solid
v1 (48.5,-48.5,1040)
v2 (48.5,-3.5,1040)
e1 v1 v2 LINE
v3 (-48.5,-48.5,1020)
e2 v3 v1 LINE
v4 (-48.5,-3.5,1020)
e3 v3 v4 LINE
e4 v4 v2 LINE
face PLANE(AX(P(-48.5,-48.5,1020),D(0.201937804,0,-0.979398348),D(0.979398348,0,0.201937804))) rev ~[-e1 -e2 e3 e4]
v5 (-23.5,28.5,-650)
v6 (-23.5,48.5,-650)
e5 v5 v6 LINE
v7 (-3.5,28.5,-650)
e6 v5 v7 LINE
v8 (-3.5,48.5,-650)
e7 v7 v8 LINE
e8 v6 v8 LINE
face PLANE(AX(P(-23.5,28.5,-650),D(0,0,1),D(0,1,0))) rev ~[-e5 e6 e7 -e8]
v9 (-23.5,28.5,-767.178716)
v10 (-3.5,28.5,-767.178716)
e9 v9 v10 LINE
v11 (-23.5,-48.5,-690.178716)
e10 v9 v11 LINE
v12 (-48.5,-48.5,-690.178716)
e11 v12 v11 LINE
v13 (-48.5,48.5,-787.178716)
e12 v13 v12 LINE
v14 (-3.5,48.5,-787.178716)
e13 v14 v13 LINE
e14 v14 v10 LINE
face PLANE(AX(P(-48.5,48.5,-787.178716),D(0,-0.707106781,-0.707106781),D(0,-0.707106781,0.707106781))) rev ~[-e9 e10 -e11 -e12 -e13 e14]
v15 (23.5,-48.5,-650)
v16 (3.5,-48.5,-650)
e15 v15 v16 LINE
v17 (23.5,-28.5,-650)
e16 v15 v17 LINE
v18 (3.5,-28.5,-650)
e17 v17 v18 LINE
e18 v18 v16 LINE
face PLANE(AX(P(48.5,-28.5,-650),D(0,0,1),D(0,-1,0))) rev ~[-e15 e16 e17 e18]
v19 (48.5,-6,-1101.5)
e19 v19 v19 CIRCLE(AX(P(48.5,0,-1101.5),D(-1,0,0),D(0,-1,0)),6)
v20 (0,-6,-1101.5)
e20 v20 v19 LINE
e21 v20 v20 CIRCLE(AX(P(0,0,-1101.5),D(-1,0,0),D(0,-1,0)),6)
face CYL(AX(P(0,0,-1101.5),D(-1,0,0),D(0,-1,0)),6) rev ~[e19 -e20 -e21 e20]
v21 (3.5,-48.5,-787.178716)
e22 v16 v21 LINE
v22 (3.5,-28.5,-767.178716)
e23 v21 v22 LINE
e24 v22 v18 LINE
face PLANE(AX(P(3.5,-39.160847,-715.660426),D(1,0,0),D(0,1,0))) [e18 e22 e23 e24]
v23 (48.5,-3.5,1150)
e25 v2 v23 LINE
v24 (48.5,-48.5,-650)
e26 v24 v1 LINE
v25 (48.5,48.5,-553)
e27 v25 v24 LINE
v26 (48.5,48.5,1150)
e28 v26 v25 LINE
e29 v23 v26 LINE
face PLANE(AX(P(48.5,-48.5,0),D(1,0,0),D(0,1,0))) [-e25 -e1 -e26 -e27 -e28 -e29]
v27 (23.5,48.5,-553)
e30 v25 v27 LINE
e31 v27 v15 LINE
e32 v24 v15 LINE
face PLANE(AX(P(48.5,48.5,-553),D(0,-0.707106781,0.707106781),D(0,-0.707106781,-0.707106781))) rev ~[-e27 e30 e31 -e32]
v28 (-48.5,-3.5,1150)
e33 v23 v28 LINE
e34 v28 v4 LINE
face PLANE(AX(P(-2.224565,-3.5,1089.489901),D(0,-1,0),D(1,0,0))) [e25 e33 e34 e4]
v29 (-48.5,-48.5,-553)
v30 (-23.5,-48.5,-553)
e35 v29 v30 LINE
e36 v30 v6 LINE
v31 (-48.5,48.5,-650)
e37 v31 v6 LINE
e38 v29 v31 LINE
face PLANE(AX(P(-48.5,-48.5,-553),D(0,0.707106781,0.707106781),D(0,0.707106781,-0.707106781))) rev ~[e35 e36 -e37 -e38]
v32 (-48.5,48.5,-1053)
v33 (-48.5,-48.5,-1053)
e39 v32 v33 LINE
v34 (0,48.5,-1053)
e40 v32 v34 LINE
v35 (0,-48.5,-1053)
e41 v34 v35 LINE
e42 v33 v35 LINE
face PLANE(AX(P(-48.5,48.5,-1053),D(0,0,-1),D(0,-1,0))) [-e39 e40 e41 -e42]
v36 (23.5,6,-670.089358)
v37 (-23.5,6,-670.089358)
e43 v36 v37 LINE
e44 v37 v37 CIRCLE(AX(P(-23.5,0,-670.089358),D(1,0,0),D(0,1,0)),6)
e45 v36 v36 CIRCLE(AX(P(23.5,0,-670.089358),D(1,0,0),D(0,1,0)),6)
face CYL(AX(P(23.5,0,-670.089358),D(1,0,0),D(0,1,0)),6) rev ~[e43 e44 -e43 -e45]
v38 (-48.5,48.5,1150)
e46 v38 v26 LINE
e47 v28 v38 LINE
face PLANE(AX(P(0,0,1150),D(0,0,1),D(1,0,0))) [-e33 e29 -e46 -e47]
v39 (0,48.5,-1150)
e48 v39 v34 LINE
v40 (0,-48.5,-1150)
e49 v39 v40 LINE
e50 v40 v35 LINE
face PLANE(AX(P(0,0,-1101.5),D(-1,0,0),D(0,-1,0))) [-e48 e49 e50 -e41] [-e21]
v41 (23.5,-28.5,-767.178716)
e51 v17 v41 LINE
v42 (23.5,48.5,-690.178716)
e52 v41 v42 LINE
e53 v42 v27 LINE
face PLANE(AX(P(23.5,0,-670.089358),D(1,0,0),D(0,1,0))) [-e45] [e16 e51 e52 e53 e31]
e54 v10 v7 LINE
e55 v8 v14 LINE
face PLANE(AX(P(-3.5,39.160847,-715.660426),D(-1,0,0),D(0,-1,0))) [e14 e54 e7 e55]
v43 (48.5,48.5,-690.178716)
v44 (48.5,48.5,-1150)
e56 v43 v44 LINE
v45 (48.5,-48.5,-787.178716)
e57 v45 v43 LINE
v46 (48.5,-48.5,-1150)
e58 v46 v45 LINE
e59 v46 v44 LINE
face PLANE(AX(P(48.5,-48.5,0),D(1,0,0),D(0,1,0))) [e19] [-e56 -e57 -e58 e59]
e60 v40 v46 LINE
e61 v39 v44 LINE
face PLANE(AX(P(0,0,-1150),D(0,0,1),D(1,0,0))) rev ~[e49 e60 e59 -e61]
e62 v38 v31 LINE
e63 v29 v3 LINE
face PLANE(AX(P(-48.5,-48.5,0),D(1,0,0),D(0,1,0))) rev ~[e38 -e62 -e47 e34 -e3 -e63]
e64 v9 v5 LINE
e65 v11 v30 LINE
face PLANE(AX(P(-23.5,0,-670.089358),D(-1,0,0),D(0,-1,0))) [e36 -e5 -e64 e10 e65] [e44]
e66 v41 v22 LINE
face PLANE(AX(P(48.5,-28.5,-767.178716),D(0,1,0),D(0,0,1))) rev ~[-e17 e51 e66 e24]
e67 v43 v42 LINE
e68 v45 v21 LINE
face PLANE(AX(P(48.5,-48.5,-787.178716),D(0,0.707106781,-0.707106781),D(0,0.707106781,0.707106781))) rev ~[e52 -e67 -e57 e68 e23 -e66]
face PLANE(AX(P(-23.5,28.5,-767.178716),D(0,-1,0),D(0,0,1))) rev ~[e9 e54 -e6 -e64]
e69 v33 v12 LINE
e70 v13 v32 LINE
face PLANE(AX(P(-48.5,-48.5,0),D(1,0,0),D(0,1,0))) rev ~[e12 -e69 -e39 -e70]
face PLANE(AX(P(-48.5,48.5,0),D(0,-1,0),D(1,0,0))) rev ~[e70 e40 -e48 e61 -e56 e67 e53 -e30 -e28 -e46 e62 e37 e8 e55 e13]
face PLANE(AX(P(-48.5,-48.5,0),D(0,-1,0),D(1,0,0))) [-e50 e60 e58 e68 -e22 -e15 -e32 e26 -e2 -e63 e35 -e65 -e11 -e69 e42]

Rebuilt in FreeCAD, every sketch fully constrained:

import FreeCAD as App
import Part
import Sketcher

V = App.Vector
Q = App.Units.Quantity

doc = App.newDocument("Part")
params = doc.addObject("Spreadsheet::Sheet", "Params")
for row, (alias, value) in enumerate([
    ("sketch1_width", "97 mm"),
    ("pad1_length", "2300 mm"),
    ("sketch2_width", "97 mm"),
    ("pocket1_length", "48.5 mm"),
    ("sketch3_width", "20 mm"),
    ("pocket2_length", "45 mm"),
    ("pocket3_length", "25 mm"),
    ("pocket4_length", "25 mm"),
    ("sketch6_width", "20 mm"),
    ("pocket5_length", "20 mm"),
    ("sketch7_diameter", "12 mm"),
    ("sketch8_diameter", "12 mm"),
    ("sketch9_width", "97 mm"),
    ("sketch9_height", "130 mm"),
    ("sketch9_height2", "110 mm"),
    ("pocket8_length", "45 mm"),
], start=1):
    params.set(f"A{row}", alias)
    params.set(f"B{row}", "=" + value)
    params.setAlias(f"B{row}", alias)

body = doc.addObject("PartDesign::Body", "Body")

sketch1 = doc.addObject("Sketcher::SketchObject", "Sketch")
body.addObject(sketch1)
sketch1.AttachmentSupport = (doc.XY_Plane, [""])
sketch1.MapMode = "FlatFace"
sketch1.addGeometry([
    Part.LineSegment(V(-48, 48, 0), V(-48, -48, 0)),
    Part.LineSegment(V(-48, -48, 0), V(48, -48, 0)),
    Part.LineSegment(V(48, -48, 0), V(48, 48, 0)),
    Part.LineSegment(V(48, 48, 0), V(-48, 48, 0)),
], False)
sketch1.addConstraint([
    Sketcher.Constraint("Coincident", 0, 2, 1, 1),
    Sketcher.Constraint("Coincident", 1, 2, 2, 1),
    Sketcher.Constraint("Coincident", 2, 2, 3, 1),
    Sketcher.Constraint("Coincident", 3, 2, 0, 1),
    Sketcher.Constraint("Vertical", 0),
    Sketcher.Constraint("Horizontal", 1),
    Sketcher.Constraint("Vertical", 2),
    Sketcher.Constraint("Horizontal", 3),
    Sketcher.Constraint("Symmetric", 0, 2, 2, 2, -1, 1),
    Sketcher.Constraint("Equal", 3, 0),
    Sketcher.Constraint("DistanceX", 1, 1, 1, 2, 97.0),
])
sketch1.setExpression("Constraints[10]", "Params.sketch1_width")
pad1 = doc.addObject("PartDesign::Pad", "Pad")
body.addObject(pad1)
pad1.Profile = sketch1
pad1.setExpression("Length", "Params.pad1_length")
pad1.Midplane = True

sketch2 = doc.addObject("Sketcher::SketchObject", "Sketch001")
body.addObject(sketch2)
sketch2.AttachmentSupport = (doc.YZ_Plane, [""])
sketch2.MapMode = "FlatFace"
sketch2.AttachmentOffset = App.Placement(V(0, 0, -48.5), App.Rotation())
sketch2.addGeometry([
    Part.LineSegment(V(48, -1053, 0), V(48, -1150, 0)),
    Part.LineSegment(V(48, -1150, 0), V(-48, -1150, 0)),
    Part.LineSegment(V(-48, -1150, 0), V(-48, -1053, 0)),
    Part.LineSegment(V(-48, -1053, 0), V(48, -1053, 0)),
], False)
sketch2.addConstraint([
    Sketcher.Constraint("Coincident", 0, 2, 1, 1),
    Sketcher.Constraint("Coincident", 1, 2, 2, 1),
    Sketcher.Constraint("Coincident", 2, 2, 3, 1),
    Sketcher.Constraint("Coincident", 3, 2, 0, 1),
    Sketcher.Constraint("Vertical", 0),
    Sketcher.Constraint("Horizontal", 1),
    Sketcher.Constraint("Vertical", 2),
    Sketcher.Constraint("Horizontal", 3),
    Sketcher.Constraint("Equal", 3, 0),
    Sketcher.Constraint("DistanceX", 1, 2, 1, 1, 97.0),
    Sketcher.Constraint("DistanceY", 0, 2, -1, 1, 1150.0),
    Sketcher.Constraint("DistanceX", -1, 1, 0, 2, 48.5),
])
sketch2.setExpression("Constraints[9]", "Params.sketch2_width")
pocket1 = doc.addObject("PartDesign::Pocket", "Pocket")
body.addObject(pocket1)
pocket1.Profile = sketch2
pocket1.setExpression("Length", "Params.pocket1_length")
pocket1.Reversed = True

sketch3 = doc.addObject("Sketcher::SketchObject", "Sketch002")
body.addObject(sketch3)
sketch3.AttachmentSupport = (doc.YZ_Plane, [""])
sketch3.MapMode = "FlatFace"
sketch3.AttachmentOffset = App.Placement(V(0, 0, 48.5), App.Rotation())
sketch3.addGeometry([
    Part.LineSegment(V(-28, -650, 0), V(-48, -650, 0)),
    Part.LineSegment(V(-48, -650, 0), V(-48, -787, 0)),
    Part.LineSegment(V(-48, -787, 0), V(-28, -767, 0)),
    Part.LineSegment(V(-28, -767, 0), V(-28, -650, 0)),
], False)
sketch3.addConstraint([
    Sketcher.Constraint("Coincident", 0, 2, 1, 1),
    Sketcher.Constraint("Coincident", 1, 2, 2, 1),
    Sketcher.Constraint("Coincident", 2, 2, 3, 1),
    Sketcher.Constraint("Coincident", 3, 2, 0, 1),
    Sketcher.Constraint("Horizontal", 0),
    Sketcher.Constraint("Vertical", 1),
    Sketcher.Constraint("Vertical", 3),
    Sketcher.Constraint("DistanceX", 0, 2, 0, 1, 20.0),
    Sketcher.Constraint("Angle", 2, Q("45 deg")),
    Sketcher.Constraint("DistanceY", 0, 2, -1, 1, 650.0),
    Sketcher.Constraint("DistanceX", 0, 2, -1, 1, 48.5),
    Sketcher.Constraint("DistanceY", 1, 2, 1, 1, 137.178716),
])
sketch3.setExpression("Constraints[7]", "Params.sketch3_width")
pocket2 = doc.addObject("PartDesign::Pocket", "Pocket001")
body.addObject(pocket2)
pocket2.Profile = sketch3
pocket2.setExpression("Length", "Params.pocket2_length")

sketch4 = doc.addObject("Sketcher::SketchObject", "Sketch003")
body.addObject(sketch4)
sketch4.AttachmentSupport = (doc.YZ_Plane, [""])
sketch4.MapMode = "FlatFace"
sketch4.AttachmentOffset = App.Placement(V(0, 0, -48.5), App.Rotation())
sketch4.addGeometry([
    Part.LineSegment(V(48, -650, 0), V(48, -787, 0)),
    Part.LineSegment(V(48, -787, 0), V(-48, -690, 0)),
    Part.LineSegment(V(-48, -690, 0), V(-48, -553, 0)),
    Part.LineSegment(V(-48, -553, 0), V(48, -650, 0)),
], False)
sketch4.addConstraint([
    Sketcher.Constraint("Coincident", 0, 2, 1, 1),
    Sketcher.Constraint("Coincident", 1, 2, 2, 1),
    Sketcher.Constraint("Coincident", 2, 2, 3, 1),
    Sketcher.Constraint("Coincident", 3, 2, 0, 1),
    Sketcher.Constraint("Vertical", 0),
    Sketcher.Constraint("Vertical", 2),
    Sketcher.Constraint("Parallel", 1, 3),
    Sketcher.Constraint("Angle", 1, Q("135 deg")),
    Sketcher.Constraint("DistanceY", 2, 2, -1, 1, 553.0),
    Sketcher.Constraint("DistanceY", 3, 2, -1, 1, 650.0),
    Sketcher.Constraint("DistanceX", -1, 1, 0, 2, 48.5),
    Sketcher.Constraint("DistanceY", 0, 2, 0, 1, 137.178716),
])
pocket3 = doc.addObject("PartDesign::Pocket", "Pocket002")
body.addObject(pocket3)
pocket3.Profile = sketch4
pocket3.setExpression("Length", "Params.pocket3_length")
pocket3.Reversed = True

sketch5 = doc.addObject("Sketcher::SketchObject", "Sketch004")
body.addObject(sketch5)
sketch5.AttachmentSupport = (doc.YZ_Plane, [""])
sketch5.MapMode = "FlatFace"
sketch5.AttachmentOffset = App.Placement(V(0, 0, 48.5), App.Rotation())
sketch5.addGeometry([
    Part.LineSegment(V(48, -690, 0), V(48, -553, 0)),
    Part.LineSegment(V(48, -553, 0), V(-48, -650, 0)),
    Part.LineSegment(V(-48, -650, 0), V(-48, -787, 0)),
    Part.LineSegment(V(-48, -787, 0), V(48, -690, 0)),
], False)
sketch5.addConstraint([
    Sketcher.Constraint("Coincident", 0, 2, 1, 1),
    Sketcher.Constraint("Coincident", 1, 2, 2, 1),
    Sketcher.Constraint("Coincident", 2, 2, 3, 1),
    Sketcher.Constraint("Coincident", 3, 2, 0, 1),
    Sketcher.Constraint("Vertical", 0),
    Sketcher.Constraint("Vertical", 2),
    Sketcher.Constraint("Parallel", 1, 3),
    Sketcher.Constraint("Angle", 1, Q("-135 deg")),
    Sketcher.Constraint("DistanceY", 0, 2, -1, 1, 553.0),
    Sketcher.Constraint("DistanceY", 1, 2, -1, 1, 650.0),
    Sketcher.Constraint("DistanceX", -1, 1, 0, 2, 48.5),
    Sketcher.Constraint("DistanceY", 0, 1, 0, 2, 137.178716),
])
pocket4 = doc.addObject("PartDesign::Pocket", "Pocket003")
body.addObject(pocket4)
pocket4.Profile = sketch5
pocket4.setExpression("Length", "Params.pocket4_length")

sketch6 = doc.addObject("Sketcher::SketchObject", "Sketch005")
body.addObject(sketch6)
sketch6.AttachmentSupport = (doc.YZ_Plane, [""])
sketch6.MapMode = "FlatFace"
sketch6.AttachmentOffset = App.Placement(V(0, 0, -23.5), App.Rotation())
sketch6.addGeometry([
    Part.LineSegment(V(48, -650, 0), V(48, -787, 0)),
    Part.LineSegment(V(48, -787, 0), V(28, -767, 0)),
    Part.LineSegment(V(28, -767, 0), V(28, -650, 0)),
    Part.LineSegment(V(28, -650, 0), V(48, -650, 0)),
], False)
sketch6.addConstraint([
    Sketcher.Constraint("Coincident", 0, 2, 1, 1),
    Sketcher.Constraint("Coincident", 1, 2, 2, 1),
    Sketcher.Constraint("Coincident", 2, 2, 3, 1),
    Sketcher.Constraint("Coincident", 3, 2, 0, 1),
    Sketcher.Constraint("Vertical", 0),
    Sketcher.Constraint("Vertical", 2),
    Sketcher.Constraint("Horizontal", 3),
    Sketcher.Constraint("DistanceX", 3, 1, 3, 2, 20.0),
    Sketcher.Constraint("Angle", 1, Q("135 deg")),
    Sketcher.Constraint("DistanceY", 2, 2, -1, 1, 650.0),
    Sketcher.Constraint("DistanceX", -1, 1, 0, 2, 48.5),
    Sketcher.Constraint("DistanceY", 0, 2, 0, 1, 137.178716),
])
sketch6.setExpression("Constraints[7]", "Params.sketch6_width")
pocket5 = doc.addObject("PartDesign::Pocket", "Pocket004")
body.addObject(pocket5)
pocket5.Profile = sketch6
pocket5.setExpression("Length", "Params.pocket5_length")
pocket5.Reversed = True

sketch7 = doc.addObject("Sketcher::SketchObject", "Sketch006")
body.addObject(sketch7)
sketch7.AttachmentSupport = (doc.YZ_Plane, [""])
sketch7.MapMode = "FlatFace"
sketch7.AttachmentOffset = App.Placement(V(0, 0, 23.5), App.Rotation())
sketch7.addGeometry(Part.Circle(V(0, -670, 0), V(0, 0, 1), 6), False)
sketch7.addConstraint([
    Sketcher.Constraint("PointOnObject", 0, 3, -2),
    Sketcher.Constraint("Diameter", 0, 12.0),
    Sketcher.Constraint("DistanceY", 0, 3, -1, 1, 670.089358),
])
sketch7.setExpression("Constraints[1]", "Params.sketch7_diameter")
pocket6 = doc.addObject("PartDesign::Pocket", "Pocket005")
body.addObject(pocket6)
pocket6.Profile = sketch7
pocket6.Type = "ThroughAll"

sketch8 = doc.addObject("Sketcher::SketchObject", "Sketch007")
body.addObject(sketch8)
sketch8.AttachmentSupport = (doc.YZ_Plane, [""])
sketch8.MapMode = "FlatFace"
sketch8.addGeometry(Part.Circle(V(0, -1102, 0), V(0, 0, 1), 6), False)
sketch8.addConstraint([
    Sketcher.Constraint("PointOnObject", 0, 3, -2),
    Sketcher.Constraint("Diameter", 0, 12.0),
    Sketcher.Constraint("DistanceY", 0, 3, -1, 1, 1101.5),
])
sketch8.setExpression("Constraints[1]", "Params.sketch8_diameter")
pocket7 = doc.addObject("PartDesign::Pocket", "Pocket006")
body.addObject(pocket7)
pocket7.Profile = sketch8
pocket7.Type = "ThroughAll"
pocket7.Reversed = True

sketch9 = doc.addObject("Sketcher::SketchObject", "Sketch008")
body.addObject(sketch9)
sketch9.AttachmentSupport = (doc.XZ_Plane, [""])
sketch9.MapMode = "FlatFace"
sketch9.AttachmentOffset = App.Placement(V(0, 0, 48.5), App.Rotation())
sketch9.addGeometry([
    Part.LineSegment(V(48, 1150, 0), V(-48, 1150, 0)),
    Part.LineSegment(V(-48, 1150, 0), V(-48, 1020, 0)),
    Part.LineSegment(V(-48, 1020, 0), V(48, 1040, 0)),
    Part.LineSegment(V(48, 1040, 0), V(48, 1150, 0)),
], False)
sketch9.addConstraint([
    Sketcher.Constraint("Coincident", 0, 2, 1, 1),
    Sketcher.Constraint("Coincident", 1, 2, 2, 1),
    Sketcher.Constraint("Coincident", 2, 2, 3, 1),
    Sketcher.Constraint("Coincident", 3, 2, 0, 1),
    Sketcher.Constraint("Horizontal", 0),
    Sketcher.Constraint("Vertical", 1),
    Sketcher.Constraint("Vertical", 3),
    Sketcher.Constraint("DistanceX", 0, 2, 0, 1, 97.0),
    Sketcher.Constraint("DistanceY", 1, 2, 1, 1, 130.0),
    Sketcher.Constraint("DistanceY", 3, 1, 3, 2, 110.0),
    Sketcher.Constraint("DistanceY", -1, 1, 0, 2, 1150.0),
    Sketcher.Constraint("DistanceX", 0, 2, -1, 1, 48.5),
])
sketch9.setExpression("Constraints[7]", "Params.sketch9_width")
sketch9.setExpression("Constraints[8]", "Params.sketch9_height")
sketch9.setExpression("Constraints[9]", "Params.sketch9_height2")
pocket8 = doc.addObject("PartDesign::Pocket", "Pocket007")
body.addObject(pocket8)
pocket8.Profile = sketch9
pocket8.setExpression("Length", "Params.pocket8_length")

doc.recompute()
